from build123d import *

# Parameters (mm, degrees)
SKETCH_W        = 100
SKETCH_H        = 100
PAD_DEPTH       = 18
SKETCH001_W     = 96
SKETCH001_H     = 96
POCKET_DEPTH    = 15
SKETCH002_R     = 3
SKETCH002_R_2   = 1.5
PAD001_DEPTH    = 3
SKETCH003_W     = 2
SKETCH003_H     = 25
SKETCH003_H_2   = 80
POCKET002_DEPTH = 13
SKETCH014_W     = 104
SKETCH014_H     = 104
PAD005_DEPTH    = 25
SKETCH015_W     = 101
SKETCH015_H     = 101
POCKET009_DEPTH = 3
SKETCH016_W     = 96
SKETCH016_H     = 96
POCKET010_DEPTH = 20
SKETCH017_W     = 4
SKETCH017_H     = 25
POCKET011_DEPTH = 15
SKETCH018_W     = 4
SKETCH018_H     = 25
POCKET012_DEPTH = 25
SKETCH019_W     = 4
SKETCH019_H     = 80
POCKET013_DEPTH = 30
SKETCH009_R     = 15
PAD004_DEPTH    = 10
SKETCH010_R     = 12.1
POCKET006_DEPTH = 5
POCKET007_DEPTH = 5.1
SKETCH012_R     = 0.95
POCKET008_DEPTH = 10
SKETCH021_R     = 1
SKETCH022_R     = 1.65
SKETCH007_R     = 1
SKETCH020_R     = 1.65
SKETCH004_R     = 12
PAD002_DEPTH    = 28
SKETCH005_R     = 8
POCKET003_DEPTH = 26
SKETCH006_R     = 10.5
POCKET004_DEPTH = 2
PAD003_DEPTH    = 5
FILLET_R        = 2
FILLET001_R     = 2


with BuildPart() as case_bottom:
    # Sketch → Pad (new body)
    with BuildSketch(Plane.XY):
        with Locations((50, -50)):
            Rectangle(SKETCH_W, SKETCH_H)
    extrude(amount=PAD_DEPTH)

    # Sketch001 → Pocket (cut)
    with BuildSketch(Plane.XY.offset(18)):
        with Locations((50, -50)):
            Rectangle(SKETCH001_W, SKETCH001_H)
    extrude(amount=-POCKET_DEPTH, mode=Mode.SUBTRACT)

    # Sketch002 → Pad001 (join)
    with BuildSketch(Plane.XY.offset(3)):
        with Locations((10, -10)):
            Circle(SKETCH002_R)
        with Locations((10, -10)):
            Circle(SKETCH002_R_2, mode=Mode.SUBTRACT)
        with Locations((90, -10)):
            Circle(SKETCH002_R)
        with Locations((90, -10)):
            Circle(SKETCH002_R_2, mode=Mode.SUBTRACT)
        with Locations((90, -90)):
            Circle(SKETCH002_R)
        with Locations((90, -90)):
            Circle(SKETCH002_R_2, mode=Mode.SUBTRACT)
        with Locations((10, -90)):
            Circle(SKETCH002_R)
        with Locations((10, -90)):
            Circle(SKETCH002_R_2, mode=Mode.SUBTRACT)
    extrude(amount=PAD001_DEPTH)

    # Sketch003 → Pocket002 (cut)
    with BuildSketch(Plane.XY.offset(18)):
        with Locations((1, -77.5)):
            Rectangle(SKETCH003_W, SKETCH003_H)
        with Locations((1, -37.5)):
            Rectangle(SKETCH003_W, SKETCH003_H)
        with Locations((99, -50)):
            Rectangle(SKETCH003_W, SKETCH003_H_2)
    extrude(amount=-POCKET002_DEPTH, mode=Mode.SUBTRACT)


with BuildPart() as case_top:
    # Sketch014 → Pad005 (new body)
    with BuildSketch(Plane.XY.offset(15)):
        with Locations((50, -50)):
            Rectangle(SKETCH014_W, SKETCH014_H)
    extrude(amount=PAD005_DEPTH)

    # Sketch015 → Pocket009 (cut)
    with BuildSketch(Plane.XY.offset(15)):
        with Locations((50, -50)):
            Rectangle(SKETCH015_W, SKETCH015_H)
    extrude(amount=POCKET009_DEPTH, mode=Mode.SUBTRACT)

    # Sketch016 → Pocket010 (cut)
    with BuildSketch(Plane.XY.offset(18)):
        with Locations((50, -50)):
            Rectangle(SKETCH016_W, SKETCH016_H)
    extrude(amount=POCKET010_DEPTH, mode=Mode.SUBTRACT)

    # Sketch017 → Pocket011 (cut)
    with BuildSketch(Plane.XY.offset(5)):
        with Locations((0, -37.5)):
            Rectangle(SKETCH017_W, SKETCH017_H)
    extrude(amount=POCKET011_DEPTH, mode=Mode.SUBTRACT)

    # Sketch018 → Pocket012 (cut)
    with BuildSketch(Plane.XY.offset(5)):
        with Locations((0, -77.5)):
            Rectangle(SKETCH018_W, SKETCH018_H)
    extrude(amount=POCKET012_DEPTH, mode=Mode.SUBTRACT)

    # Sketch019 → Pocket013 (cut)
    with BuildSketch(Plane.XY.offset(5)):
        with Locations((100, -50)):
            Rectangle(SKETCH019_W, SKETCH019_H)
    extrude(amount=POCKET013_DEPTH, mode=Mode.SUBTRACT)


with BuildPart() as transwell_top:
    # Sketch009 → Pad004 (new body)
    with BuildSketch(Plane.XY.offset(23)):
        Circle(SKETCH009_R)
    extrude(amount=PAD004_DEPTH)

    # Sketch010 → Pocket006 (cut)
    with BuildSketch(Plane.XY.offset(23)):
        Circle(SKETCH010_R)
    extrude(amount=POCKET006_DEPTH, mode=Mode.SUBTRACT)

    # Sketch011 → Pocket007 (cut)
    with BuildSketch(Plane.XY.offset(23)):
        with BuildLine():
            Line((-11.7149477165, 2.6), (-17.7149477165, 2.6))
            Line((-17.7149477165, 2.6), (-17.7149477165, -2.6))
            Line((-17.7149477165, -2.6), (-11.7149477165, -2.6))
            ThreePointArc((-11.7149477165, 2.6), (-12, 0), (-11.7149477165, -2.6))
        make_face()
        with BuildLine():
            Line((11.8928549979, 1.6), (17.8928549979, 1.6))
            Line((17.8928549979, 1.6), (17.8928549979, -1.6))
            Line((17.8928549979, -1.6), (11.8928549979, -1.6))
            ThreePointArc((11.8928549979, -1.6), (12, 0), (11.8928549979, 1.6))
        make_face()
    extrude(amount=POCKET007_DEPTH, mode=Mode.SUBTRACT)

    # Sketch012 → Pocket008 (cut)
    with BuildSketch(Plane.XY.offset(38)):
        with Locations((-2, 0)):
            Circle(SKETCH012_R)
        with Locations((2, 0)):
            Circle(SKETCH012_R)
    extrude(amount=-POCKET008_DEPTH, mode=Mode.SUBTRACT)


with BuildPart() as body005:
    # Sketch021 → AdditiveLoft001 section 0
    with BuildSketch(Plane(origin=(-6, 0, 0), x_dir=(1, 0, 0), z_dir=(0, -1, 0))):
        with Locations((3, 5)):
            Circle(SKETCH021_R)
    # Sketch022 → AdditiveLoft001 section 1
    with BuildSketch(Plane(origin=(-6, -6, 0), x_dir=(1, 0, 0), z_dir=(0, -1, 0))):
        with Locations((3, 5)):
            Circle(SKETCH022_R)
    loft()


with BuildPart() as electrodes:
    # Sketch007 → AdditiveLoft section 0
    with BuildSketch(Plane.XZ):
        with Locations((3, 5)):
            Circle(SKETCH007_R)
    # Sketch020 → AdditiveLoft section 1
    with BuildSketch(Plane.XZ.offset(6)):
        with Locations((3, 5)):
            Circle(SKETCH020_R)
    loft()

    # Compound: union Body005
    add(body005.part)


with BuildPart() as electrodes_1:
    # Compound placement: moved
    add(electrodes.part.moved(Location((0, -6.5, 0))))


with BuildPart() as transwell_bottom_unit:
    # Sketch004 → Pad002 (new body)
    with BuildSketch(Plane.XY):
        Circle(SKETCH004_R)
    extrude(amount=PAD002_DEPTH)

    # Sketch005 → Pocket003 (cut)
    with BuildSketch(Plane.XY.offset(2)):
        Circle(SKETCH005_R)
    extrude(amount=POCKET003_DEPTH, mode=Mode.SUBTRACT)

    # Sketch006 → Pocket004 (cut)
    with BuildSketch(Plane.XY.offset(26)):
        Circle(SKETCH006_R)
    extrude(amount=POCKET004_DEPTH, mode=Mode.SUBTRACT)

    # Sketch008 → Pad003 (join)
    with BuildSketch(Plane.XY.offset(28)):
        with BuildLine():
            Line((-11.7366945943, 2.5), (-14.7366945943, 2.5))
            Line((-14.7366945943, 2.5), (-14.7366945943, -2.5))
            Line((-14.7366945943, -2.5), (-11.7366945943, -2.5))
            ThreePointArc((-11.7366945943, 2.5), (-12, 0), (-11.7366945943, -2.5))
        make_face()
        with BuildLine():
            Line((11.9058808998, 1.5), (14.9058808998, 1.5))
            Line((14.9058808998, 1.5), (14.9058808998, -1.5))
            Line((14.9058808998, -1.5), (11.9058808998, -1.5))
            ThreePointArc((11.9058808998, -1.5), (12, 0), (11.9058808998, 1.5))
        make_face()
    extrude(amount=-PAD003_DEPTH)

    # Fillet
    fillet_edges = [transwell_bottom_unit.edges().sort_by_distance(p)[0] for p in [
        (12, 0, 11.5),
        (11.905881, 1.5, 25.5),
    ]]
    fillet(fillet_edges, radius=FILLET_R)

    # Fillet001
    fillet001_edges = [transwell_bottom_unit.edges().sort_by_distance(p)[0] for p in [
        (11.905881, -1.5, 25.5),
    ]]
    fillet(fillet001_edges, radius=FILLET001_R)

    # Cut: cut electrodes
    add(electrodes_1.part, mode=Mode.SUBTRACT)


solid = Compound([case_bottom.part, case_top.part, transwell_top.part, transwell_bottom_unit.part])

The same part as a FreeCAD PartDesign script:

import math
import FreeCAD as App
import Part
import Sketcher


def edges_at(feature, points):
    """Names of the edges that pass closest to the given points."""
    edges = feature.Shape.Edges
    near = lambda p: min(range(len(edges)), key=lambda i: edges[i].distToShape(Part.Vertex(*p))[0])
    return sorted({f"Edge{near(p) + 1}" for p in points})


def add_polygon(sketch, points):
    """Adds a closed chain of lines whose ends are joined by coincident constraints."""
    first, n = sketch.GeometryCount, len(points)
    for a, b in zip(points, points[1:] + points[:1]):
        sketch.addGeometry(Part.LineSegment(App.Vector(*a, 0), App.Vector(*b, 0)), False)
    for i in range(n):
        sketch.addConstraint(Sketcher.Constraint("Coincident", first + i, 2, first + (i + 1) % n, 1))

doc = App.newDocument("Part")
body = doc.addObject("PartDesign::Body", "Body")

# Sketch on XY plane
sketch1 = body.newObject("Sketcher::SketchObject", "Sketch")
sketch1.AttachmentSupport = (doc.getObject("XY_Plane"), [""])
sketch1.MapMode = "FlatFace"
add_polygon(sketch1, [(0, 0), (0, -100), (100, -100), (100, 0)])  # lines 0-3
sketch1.addConstraint(Sketcher.Constraint("Vertical", 0))
sketch1.addConstraint(Sketcher.Constraint("Horizontal", 1))
sketch1.addConstraint(Sketcher.Constraint("Vertical", 2))
sketch1.addConstraint(Sketcher.Constraint("Horizontal", 3))
sketch1.addConstraint(Sketcher.Constraint("Coincident", 3, 2, -1, 1))
sketch1.addConstraint(Sketcher.Constraint("Equal", 3, 0))
sketch1.addConstraint(Sketcher.Constraint("DistanceX", 1, 1, 1, 2, 100.0))
pad1 = body.newObject("PartDesign::Pad", "Pad")
pad1.Profile = sketch1
pad1.Length = 18

# Sketch on XY plane
sketch2 = body.newObject("Sketcher::SketchObject", "Sketch001")
sketch2.AttachmentSupport = (doc.getObject("XY_Plane"), [""])
sketch2.MapMode = "FlatFace"
sketch2.AttachmentOffset = App.Placement(App.Vector(0, 0, 18), App.Rotation())
add_polygon(sketch2, [(2, -2), (2, -98), (98, -98), (98, -2)])  # lines 0-3
sketch2.addConstraint(Sketcher.Constraint("Vertical", 0))
sketch2.addConstraint(Sketcher.Constraint("Horizontal", 1))
sketch2.addConstraint(Sketcher.Constraint("Vertical", 2))
sketch2.addConstraint(Sketcher.Constraint("Horizontal", 3))
sketch2.addConstraint(Sketcher.Constraint("Equal", 3, 0))
sketch2.addConstraint(Sketcher.Constraint("DistanceX", 1, 1, 1, 2, 96.0))
sketch2.addConstraint(Sketcher.Constraint("DistanceX", -1, 1, 0, 2, 2.0))
sketch2.addConstraint(Sketcher.Constraint("DistanceY", 0, 2, -1, 1, 98.0))
pocket1 = body.newObject("PartDesign::Pocket", "Pocket")
pocket1.Profile = sketch2
pocket1.Length = 15

# Sketch on XY plane
sketch3 = body.newObject("Sketcher::SketchObject", "Sketch002")
sketch3.AttachmentSupport = (doc.getObject("XY_Plane"), [""])
sketch3.MapMode = "FlatFace"
sketch3.AttachmentOffset = App.Placement(App.Vector(0, 0, 3), App.Rotation())
sketch3.addGeometry(Part.Circle(App.Vector(10, -10, 0), App.Vector(0, 0, 1), 3), False)
sketch3.addGeometry(Part.Circle(App.Vector(10, -10, 0), App.Vector(0, 0, 1), 1.5), False)
sketch3.addGeometry(Part.Circle(App.Vector(90, -10, 0), App.Vector(0, 0, 1), 3), False)
sketch3.addGeometry(Part.Circle(App.Vector(90, -10, 0), App.Vector(0, 0, 1), 1.5), False)
sketch3.addGeometry(Part.Circle(App.Vector(90, -90, 0), App.Vector(0, 0, 1), 3), False)
sketch3.addGeometry(Part.Circle(App.Vector(90, -90, 0), App.Vector(0, 0, 1), 1.5), False)
sketch3.addGeometry(Part.Circle(App.Vector(10, -90, 0), App.Vector(0, 0, 1), 3), False)
sketch3.addGeometry(Part.Circle(App.Vector(10, -90, 0), App.Vector(0, 0, 1), 1.5), False)
sketch3.addConstraint(Sketcher.Constraint("Coincident", 1, 3, 0, 3))
sketch3.addConstraint(Sketcher.Constraint("Coincident", 3, 3, 2, 3))
sketch3.addConstraint(Sketcher.Constraint("Coincident", 5, 3, 4, 3))
sketch3.addConstraint(Sketcher.Constraint("Coincident", 7, 3, 6, 3))
sketch3.addConstraint(Sketcher.Constraint("Equal", 0, 2))
sketch3.addConstraint(Sketcher.Constraint("Equal", 1, 3))
sketch3.addConstraint(Sketcher.Constraint("Equal", 2, 4))
sketch3.addConstraint(Sketcher.Constraint("Equal", 3, 5))
sketch3.addConstraint(Sketcher.Constraint("Equal", 4, 6))
sketch3.addConstraint(Sketcher.Constraint("Equal", 5, 7))
sketch3.addConstraint(Sketcher.Constraint("Horizontal", 1, 3, 2, 3))
sketch3.addConstraint(Sketcher.Constraint("Horizontal", 5, 3, 6, 3))
sketch3.addConstraint(Sketcher.Constraint("Vertical", 3, 3, 4, 3))
sketch3.addConstraint(Sketcher.Constraint("Vertical", 1, 3, 6, 3))
sketch3.addConstraint(Sketcher.Constraint("Diameter", 0, 6.0))
sketch3.addConstraint(Sketcher.Constraint("Diameter", 1, 3.0))
sketch3.addConstraint(Sketcher.Constraint("DistanceX", -1, 1, 0, 3, 10.0))
sketch3.addConstraint(Sketcher.Constraint("DistanceY", 0, 3, -1, 1, 10.0))
sketch3.addConstraint(Sketcher.Constraint("DistanceX", -1, 1, 2, 3, 90.0))
sketch3.addConstraint(Sketcher.Constraint("DistanceY", 4, 3, -1, 1, 90.0))
pad2 = body.newObject("PartDesign::Pad", "Pad001")
pad2.Profile = sketch3
pad2.Length = 3

# Sketch on XY plane
sketch4 = body.newObject("Sketcher::SketchObject", "Sketch003")
sketch4.AttachmentSupport = (doc.getObject("XY_Plane"), [""])
sketch4.MapMode = "FlatFace"
sketch4.AttachmentOffset = App.Placement(App.Vector(0, 0, 18), App.Rotation())
add_polygon(sketch4, [(0, -65), (0, -90), (2, -90), (2, -65)])  # lines 0-3
add_polygon(sketch4, [(0, -25), (0, -50), (2, -50), (2, -25)])  # lines 4-7
add_polygon(sketch4, [(98, -10), (98, -90), (100, -90), (100, -10)])  # lines 8-11
sketch4.addConstraint(Sketcher.Constraint("Vertical", 0))
sketch4.addConstraint(Sketcher.Constraint("Horizontal", 1))
sketch4.addConstraint(Sketcher.Constraint("Vertical", 2))
sketch4.addConstraint(Sketcher.Constraint("Horizontal", 3))
sketch4.addConstraint(Sketcher.Constraint("Vertical", 4))
sketch4.addConstraint(Sketcher.Constraint("Horizontal", 5))
sketch4.addConstraint(Sketcher.Constraint("Vertical", 6))
sketch4.addConstraint(Sketcher.Constraint("Horizontal", 7))
sketch4.addConstraint(Sketcher.Constraint("Vertical", 8))
sketch4.addConstraint(Sketcher.Constraint("Horizontal", 9))
sketch4.addConstraint(Sketcher.Constraint("Vertical", 10))
sketch4.addConstraint(Sketcher.Constraint("Horizontal", 11))
sketch4.addConstraint(Sketcher.Constraint("PointOnObject", 0, 2, -2))
sketch4.addConstraint(Sketcher.Constraint("PointOnObject", 4, 2, -2))
sketch4.addConstraint(Sketcher.Constraint("Horizontal", 1, 2, 8, 2))
sketch4.addConstraint(Sketcher.Constraint("Vertical", 2, 2, 5, 2))
sketch4.addConstraint(Sketcher.Constraint("Equal", 7, 9))
sketch4.addConstraint(Sketcher.Constraint("Equal", 2, 4))
sketch4.addConstraint(Sketcher.Constraint("DistanceX", 1, 1, 1, 2, 2.0))
sketch4.addConstraint(Sketcher.Constraint("DistanceY", 0, 2, 0, 1, 25.0))
sketch4.addConstraint(Sketcher.Constraint("DistanceY", 8, 2, 8, 1, 80.0))
sketch4.addConstraint(Sketcher.Constraint("DistanceY", 0, 2, -1, 1, 90.0))
sketch4.addConstraint(Sketcher.Constraint("DistanceY", 4, 2, -1, 1, 50.0))
sketch4.addConstraint(Sketcher.Constraint("DistanceX", -1, 1, 8, 2, 98.0))
pocket2 = body.newObject("PartDesign::Pocket", "Pocket001")
pocket2.Profile = sketch4
pocket2.Length = 13
body2 = doc.addObject("PartDesign::Body", "Body001")

# Sketch on XY plane
sketch5 = body2.newObject("Sketcher::SketchObject", "Sketch004")
sketch5.AttachmentSupport = (doc.getObject("XY_Plane001"), [""])
sketch5.MapMode = "FlatFace"
sketch5.AttachmentOffset = App.Placement(App.Vector(0, 0, 15), App.Rotation())
add_polygon(sketch5, [(-2, 2), (-2, -102), (102, -102), (102, 2)])  # lines 0-3
sketch5.addConstraint(Sketcher.Constraint("Vertical", 0))
sketch5.addConstraint(Sketcher.Constraint("Horizontal", 1))
sketch5.addConstraint(Sketcher.Constraint("Vertical", 2))
sketch5.addConstraint(Sketcher.Constraint("Horizontal", 3))
sketch5.addConstraint(Sketcher.Constraint("Equal", 3, 0))
sketch5.addConstraint(Sketcher.Constraint("DistanceX", 1, 1, 1, 2, 104.0))
sketch5.addConstraint(Sketcher.Constraint("DistanceX", 0, 2, -1, 1, 2.0))
sketch5.addConstraint(Sketcher.Constraint("DistanceY", 0, 2, -1, 1, 102.0))
pad3 = body2.newObject("PartDesign::Pad", "Pad002")
pad3.Profile = sketch5
pad3.Length = 25

# Sketch on XY plane
sketch6 = body2.newObject("Sketcher::SketchObject", "Sketch005")
sketch6.AttachmentSupport = (doc.getObject("XY_Plane001"), [""])
sketch6.MapMode = "FlatFace"
sketch6.AttachmentOffset = App.Placement(App.Vector(0, 0, 15), App.Rotation())
add_polygon(sketch6, [(0, 0), (0, -100), (100, -100), (100, 0)])  # lines 0-3
sketch6.addConstraint(Sketcher.Constraint("Vertical", 0))
sketch6.addConstraint(Sketcher.Constraint("Horizontal", 1))
sketch6.addConstraint(Sketcher.Constraint("Vertical", 2))
sketch6.addConstraint(Sketcher.Constraint("Horizontal", 3))
sketch6.addConstraint(Sketcher.Constraint("Equal", 3, 0))
sketch6.addConstraint(Sketcher.Constraint("DistanceX", 1, 1, 1, 2, 101.0))
sketch6.addConstraint(Sketcher.Constraint("DistanceX", 0, 2, -1, 1, 0.5))
sketch6.addConstraint(Sketcher.Constraint("DistanceY", 0, 2, -1, 1, 100.5))
pocket3 = body2.newObject("PartDesign::Pocket", "Pocket002")
pocket3.Profile = sketch6
pocket3.Length = 3
pocket3.Reversed = True

# Sketch on XY plane
sketch7 = body2.newObject("Sketcher::SketchObject", "Sketch006")
sketch7.AttachmentSupport = (doc.getObject("XY_Plane001"), [""])
sketch7.MapMode = "FlatFace"
sketch7.AttachmentOffset = App.Placement(App.Vector(0, 0, 18), App.Rotation())
add_polygon(sketch7, [(2, -2), (2, -98), (98, -98), (98, -2)])  # lines 0-3
sketch7.addConstraint(Sketcher.Constraint("Vertical", 0))
sketch7.addConstraint(Sketcher.Constraint("Horizontal", 1))
sketch7.addConstraint(Sketcher.Constraint("Vertical", 2))
sketch7.addConstraint(Sketcher.Constraint("Horizontal", 3))
sketch7.addConstraint(Sketcher.Constraint("Equal", 3, 0))
sketch7.addConstraint(Sketcher.Constraint("DistanceX", 1, 1, 1, 2, 96.0))
sketch7.addConstraint(Sketcher.Constraint("DistanceX", -1, 1, 0, 2, 2.0))
sketch7.addConstraint(Sketcher.Constraint("DistanceY", 0, 2, -1, 1, 98.0))
pocket4 = body2.newObject("PartDesign::Pocket", "Pocket003")
pocket4.Profile = sketch7
pocket4.Length = 20
pocket4.Reversed = True

# Sketch on XY plane
sketch8 = body2.newObject("Sketcher::SketchObject", "Sketch007")
sketch8.AttachmentSupport = (doc.getObject("XY_Plane001"), [""])
sketch8.MapMode = "FlatFace"
sketch8.AttachmentOffset = App.Placement(App.Vector(0, 0, 5), App.Rotation())
add_polygon(sketch8, [(-2, -25), (-2, -50), (2, -50), (2, -25)])  # lines 0-3
sketch8.addConstraint(Sketcher.Constraint("Vertical", 0))
sketch8.addConstraint(Sketcher.Constraint("Horizontal", 1))
sketch8.addConstraint(Sketcher.Constraint("Vertical", 2))
sketch8.addConstraint(Sketcher.Constraint("Horizontal", 3))
sketch8.addConstraint(Sketcher.Constraint("DistanceX", 1, 1, 1, 2, 4.0))
sketch8.addConstraint(Sketcher.Constraint("DistanceY", 0, 2, 0, 1, 25.0))
sketch8.addConstraint(Sketcher.Constraint("DistanceX", 0, 2, -1, 1, 2.0))
sketch8.addConstraint(Sketcher.Constraint("DistanceY", 0, 2, -1, 1, 50.0))
pocket5 = body2.newObject("PartDesign::Pocket", "Pocket004")
pocket5.Profile = sketch8
pocket5.Length = 15
pocket5.Reversed = True

# Sketch on XY plane
sketch9 = body2.newObject("Sketcher::SketchObject", "Sketch008")
sketch9.AttachmentSupport = (doc.getObject("XY_Plane001"), [""])
sketch9.MapMode = "FlatFace"
sketch9.AttachmentOffset = App.Placement(App.Vector(0, 0, 5), App.Rotation())
add_polygon(sketch9, [(-2, -65), (-2, -90), (2, -90), (2, -65)])  # lines 0-3
sketch9.addConstraint(Sketcher.Constraint("Vertical", 0))
sketch9.addConstraint(Sketcher.Constraint("Horizontal", 1))
sketch9.addConstraint(Sketcher.Constraint("Vertical", 2))
sketch9.addConstraint(Sketcher.Constraint("Horizontal", 3))
sketch9.addConstraint(Sketcher.Constraint("DistanceX", 1, 1, 1, 2, 4.0))
sketch9.addConstraint(Sketcher.Constraint("DistanceY", 0, 2, 0, 1, 25.0))
sketch9.addConstraint(Sketcher.Constraint("DistanceX", 0, 2, -1, 1, 2.0))
sketch9.addConstraint(Sketcher.Constraint("DistanceY", 0, 2, -1, 1, 90.0))
pocket6 = body2.newObject("PartDesign::Pocket", "Pocket005")
pocket6.Profile = sketch9
pocket6.Length = 25
pocket6.Reversed = True

# Sketch on XY plane
sketch10 = body2.newObject("Sketcher::SketchObject", "Sketch009")
sketch10.AttachmentSupport = (doc.getObject("XY_Plane001"), [""])
sketch10.MapMode = "FlatFace"
sketch10.AttachmentOffset = App.Placement(App.Vector(0, 0, 5), App.Rotation())
add_polygon(sketch10, [(98, -10), (98, -90), (102, -90), (102, -10)])  # lines 0-3
sketch10.addConstraint(Sketcher.Constraint("Vertical", 0))
sketch10.addConstraint(Sketcher.Constraint("Horizontal", 1))
sketch10.addConstraint(Sketcher.Constraint("Vertical", 2))
sketch10.addConstraint(Sketcher.Constraint("Horizontal", 3))
sketch10.addConstraint(Sketcher.Constraint("DistanceX", 1, 1, 1, 2, 4.0))
sketch10.addConstraint(Sketcher.Constraint("DistanceY", 0, 2, 0, 1, 80.0))
sketch10.addConstraint(Sketcher.Constraint("DistanceX", -1, 1, 0, 2, 98.0))
sketch10.addConstraint(Sketcher.Constraint("DistanceY", 0, 2, -1, 1, 90.0))
pocket7 = body2.newObject("PartDesign::Pocket", "Pocket006")
pocket7.Profile = sketch10
pocket7.Length = 30
pocket7.Reversed = True
body3 = doc.addObject("PartDesign::Body", "Body002")

# Sketch on XY plane
sketch11 = body3.newObject("Sketcher::SketchObject", "Sketch010")
sketch11.AttachmentSupport = (doc.getObject("XY_Plane002"), [""])
sketch11.MapMode = "FlatFace"
sketch11.AttachmentOffset = App.Placement(App.Vector(0, 0, 23), App.Rotation())
sketch11.addGeometry(Part.Circle(App.Vector(0, 0, 0), App.Vector(0, 0, 1), 15), False)
sketch11.addConstraint(Sketcher.Constraint("Coincident", 0, 3, -1, 1))
sketch11.addConstraint(Sketcher.Constraint("Diameter", 0, 30.0))
pad4 = body3.newObject("PartDesign::Pad", "Pad003")
pad4.Profile = sketch11
pad4.Length = 10

# Sketch on XY plane
sketch12 = body3.newObject("Sketcher::SketchObject", "Sketch011")
sketch12.AttachmentSupport = (doc.getObject("XY_Plane002"), [""])
sketch12.MapMode = "FlatFace"
sketch12.AttachmentOffset = App.Placement(App.Vector(0, 0, 23), App.Rotation())
sketch12.addGeometry(Part.Circle(App.Vector(0, 0, 0), App.Vector(0, 0, 1), 12), False)
sketch12.addConstraint(Sketcher.Constraint("Coincident", 0, 3, -1, 1))
sketch12.addConstraint(Sketcher.Constraint("Diameter", 0, 24.2))
pocket8 = body3.newObject("PartDesign::Pocket", "Pocket007")
pocket8.Profile = sketch12
pocket8.Length = 5
pocket8.Reversed = True

# Sketch on XY plane
sketch13 = body3.newObject("Sketcher::SketchObject", "Sketch012")
sketch13.AttachmentSupport = (doc.getObject("XY_Plane002"), [""])
sketch13.MapMode = "FlatFace"
sketch13.AttachmentOffset = App.Placement(App.Vector(0, 0, 23), App.Rotation())
sketch13.addGeometry(Part.LineSegment(App.Vector(-11.7, 2.6, 0), App.Vector(-17.7, 2.6, 0)), False)
sketch13.addGeometry(Part.LineSegment(App.Vector(-17.7, 2.6, 0), App.Vector(-17.7, -2.6, 0)), False)
sketch13.addGeometry(Part.LineSegment(App.Vector(-17.7, -2.6, 0), App.Vector(-11.7, -2.6, 0)), False)
sketch13.addGeometry(Part.ArcOfCircle(Part.Circle(App.Vector(0, 0, 0), App.Vector(0, 0, 1), 12), math.radians(167), math.radians(193)), False)
sketch13.addGeometry(Part.LineSegment(App.Vector(17.9, 1.6, 0), App.Vector(11.9, 1.6, 0)), False)
sketch13.addGeometry(Part.ArcOfCircle(Part.Circle(App.Vector(0, 0, 0), App.Vector(0, 0, 1), 12), math.radians(-7.66), math.radians(7.66)), False)
sketch13.addGeometry(Part.LineSegment(App.Vector(11.9, -1.6, 0), App.Vector(17.9, -1.6, 0)), False)
sketch13.addGeometry(Part.LineSegment(App.Vector(17.9, -1.6, 0), App.Vector(17.9, 1.6, 0)), False)
sketch13.addConstraint(Sketcher.Constraint("Coincident", 0, 2, 1, 1))
sketch13.addConstraint(Sketcher.Constraint("Coincident", 1, 2, 2, 1))
sketch13.addConstraint(Sketcher.Constraint("Coincident", 2, 2, 3, 2))
sketch13.addConstraint(Sketcher.Constraint("Coincident", 3, 1, 0, 1))
sketch13.addConstraint(Sketcher.Constraint("Coincident", 4, 2, 5, 2))
sketch13.addConstraint(Sketcher.Constraint("Coincident", 5, 1, 6, 1))
sketch13.addConstraint(Sketcher.Constraint("Coincident", 6, 2, 7, 1))
sketch13.addConstraint(Sketcher.Constraint("Coincident", 7, 2, 4, 1))
sketch13.addConstraint(Sketcher.Constraint("Horizontal", 0))
sketch13.addConstraint(Sketcher.Constraint("Vertical", 1))
sketch13.addConstraint(Sketcher.Constraint("Horizontal", 2))
sketch13.addConstraint(Sketcher.Constraint("Horizontal", 4))
sketch13.addConstraint(Sketcher.Constraint("Horizontal", 6))
sketch13.addConstraint(Sketcher.Constraint("Vertical", 7))
sketch13.addConstraint(Sketcher.Constraint("Coincident", 3, 3, -1, 1))
sketch13.addConstraint(Sketcher.Constraint("Coincident", 5, 3, -1, 1))
sketch13.addConstraint(Sketcher.Constraint("Equal", 3, 5))
sketch13.addConstraint(Sketcher.Constraint("Vertical", 2, 2, 3, 1))
sketch13.addConstraint(Sketcher.Constraint("Vertical", 4, 2, 5, 1))
sketch13.addConstraint(Sketcher.Constraint("Equal", 2, 4))
sketch13.addConstraint(Sketcher.Constraint("Radius", 3, 12.0))
sketch13.addConstraint(Sketcher.Constraint("DistanceX", 0, 2, 0, 1, 6.0))
sketch13.addConstraint(Sketcher.Constraint("DistanceY", 1, 2, 1, 1, 5.2))
sketch13.addConstraint(Sketcher.Constraint("DistanceY", 7, 1, 7, 2, 3.2))
pocket9 = body3.newObject("PartDesign::Pocket", "Pocket008")
pocket9.Profile = sketch13
pocket9.Length = 5.1
pocket9.Reversed = True

# Sketch on XY plane
sketch14 = body3.newObject("Sketcher::SketchObject", "Sketch013")
sketch14.AttachmentSupport = (doc.getObject("XY_Plane002"), [""])
sketch14.MapMode = "FlatFace"
sketch14.AttachmentOffset = App.Placement(App.Vector(0, 0, 38), App.Rotation())
sketch14.addGeometry(Part.Circle(App.Vector(-2, 0, 0), App.Vector(0, 0, 1), 0.9), False)
sketch14.addGeometry(Part.Circle(App.Vector(2, 0, 0), App.Vector(0, 0, 1), 0.9), False)
sketch14.addConstraint(Sketcher.Constraint("Equal", 0, 1))
sketch14.addConstraint(Sketcher.Constraint("Symmetric", 0, 3, 1, 3, -1, 1))
sketch14.addConstraint(Sketcher.Constraint("PointOnObject", 0, 3, -1))
sketch14.addConstraint(Sketcher.Constraint("Diameter", 0, 1.9))
sketch14.addConstraint(Sketcher.Constraint("DistanceX", 0, 3, -1, 1, 2.0))
pocket10 = body3.newObject("PartDesign::Pocket", "Pocket009")
pocket10.Profile = sketch14
pocket10.Length = 10
body4 = doc.addObject("PartDesign::Body", "Body003")

# Sketch on XZ plane
sketch15 = body4.newObject("Sketcher::SketchObject", "Sketch014")
sketch15.AttachmentSupport = (doc.getObject("XZ_Plane003"), [""])
sketch15.MapMode = "FlatFace"
sketch15.addGeometry(Part.Circle(App.Vector(-3, 5, 0), App.Vector(0, 0, 1), 1), False)
sketch15.addConstraint(Sketcher.Constraint("Diameter", 0, 2.0))
sketch15.addConstraint(Sketcher.Constraint("DistanceX", 0, 3, -1, 1, 3.0))
sketch15.addConstraint(Sketcher.Constraint("DistanceY", -1, 1, 0, 3, 5.0))

# Sketch on XZ plane
sketch16 = body4.newObject("Sketcher::SketchObject", "Sketch015")
sketch16.AttachmentSupport = (doc.getObject("XZ_Plane003"), [""])
sketch16.MapMode = "FlatFace"
sketch16.AttachmentOffset = App.Placement(App.Vector(0, 0, 6), App.Rotation())
sketch16.addGeometry(Part.Circle(App.Vector(-3, 5, 0), App.Vector(0, 0, 1), 1.6), False)
sketch16.addConstraint(Sketcher.Constraint("Diameter", 0, 3.3))
sketch16.addConstraint(Sketcher.Constraint("DistanceX", 0, 3, -1, 1, 3.0))
sketch16.addConstraint(Sketcher.Constraint("DistanceY", -1, 1, 0, 3, 5.0))

additiveloft = body4.newObject("PartDesign::AdditiveLoft", "AdditiveLoft")
additiveloft.Profile = sketch15
additiveloft.Sections = [sketch16]
body5 = doc.addObject("PartDesign::Body", "Body004")
body5.AllowCompound = True

# Sketch on XZ plane
sketch17 = body5.newObject("Sketcher::SketchObject", "Sketch016")
sketch17.AttachmentSupport = (doc.getObject("XZ_Plane004"), [""])
sketch17.MapMode = "FlatFace"
sketch17.addGeometry(Part.Circle(App.Vector(3, 5, 0), App.Vector(0, 0, 1), 1), False)
sketch17.addConstraint(Sketcher.Constraint("Diameter", 0, 2.0))
sketch17.addConstraint(Sketcher.Constraint("DistanceX", -1, 1, 0, 3, 3.0))
sketch17.addConstraint(Sketcher.Constraint("DistanceY", -1, 1, 0, 3, 5.0))

# Sketch on XZ plane
sketch18 = body5.newObject("Sketcher::SketchObject", "Sketch017")
sketch18.AttachmentSupport = (doc.getObject("XZ_Plane004"), [""])
sketch18.MapMode = "FlatFace"
sketch18.AttachmentOffset = App.Placement(App.Vector(0, 0, 6), App.Rotation())
sketch18.addGeometry(Part.Circle(App.Vector(3, 5, 0), App.Vector(0, 0, 1), 1.6), False)
sketch18.addConstraint(Sketcher.Constraint("Diameter", 0, 3.3))
sketch18.addConstraint(Sketcher.Constraint("DistanceX", -1, 1, 0, 3, 3.0))
sketch18.addConstraint(Sketcher.Constraint("DistanceY", -1, 1, 0, 3, 5.0))

additiveloft2 = body5.newObject("PartDesign::AdditiveLoft", "AdditiveLoft001")
additiveloft2.Profile = sketch17
additiveloft2.Sections = [sketch18]
doc.recompute()

boolean = body5.newObject("PartDesign::Boolean", "Boolean")
boolean.Type = "Fuse"
boolean.addObjects([body4])
body6 = doc.addObject("PartDesign::Body", "Body005")
body6.AllowCompound = True
doc.recompute()

body5.Placement = App.Placement(App.Vector(0, -6.5, 0), App.Rotation(App.Vector(0, 0, 1), 0))
boolean2 = body6.newObject("PartDesign::Boolean", "Boolean001")
boolean2.Type = "Fuse"
boolean2.addObjects([body5])
body7 = doc.addObject("PartDesign::Body", "Body006")

# Sketch on XY plane
sketch19 = body7.newObject("Sketcher::SketchObject", "Sketch018")
sketch19.AttachmentSupport = (doc.getObject("XY_Plane006"), [""])
sketch19.MapMode = "FlatFace"
sketch19.addGeometry(Part.Circle(App.Vector(0, 0, 0), App.Vector(0, 0, 1), 12), False)
sketch19.addConstraint(Sketcher.Constraint("Coincident", 0, 3, -1, 1))
sketch19.addConstraint(Sketcher.Constraint("Diameter", 0, 24.0))
pad5 = body7.newObject("PartDesign::Pad", "Pad004")
pad5.Profile = sketch19
pad5.Length = 28

# Sketch on XY plane
sketch20 = body7.newObject("Sketcher::SketchObject", "Sketch019")
sketch20.AttachmentSupport = (doc.getObject("XY_Plane006"), [""])
sketch20.MapMode = "FlatFace"
sketch20.AttachmentOffset = App.Placement(App.Vector(0, 0, 2), App.Rotation())
sketch20.addGeometry(Part.Circle(App.Vector(0, 0, 0), App.Vector(0, 0, 1), 8), False)
sketch20.addConstraint(Sketcher.Constraint("Coincident", 0, 3, -1, 1))
sketch20.addConstraint(Sketcher.Constraint("Diameter", 0, 16.0))
pocket11 = body7.newObject("PartDesign::Pocket", "Pocket010")
pocket11.Profile = sketch20
pocket11.Length = 26
pocket11.Reversed = True

# Sketch on XY plane
sketch21 = body7.newObject("Sketcher::SketchObject", "Sketch020")
sketch21.AttachmentSupport = (doc.getObject("XY_Plane006"), [""])
sketch21.MapMode = "FlatFace"
sketch21.AttachmentOffset = App.Placement(App.Vector(0, 0, 26), App.Rotation())
sketch21.addGeometry(Part.Circle(App.Vector(0, 0, 0), App.Vector(0, 0, 1), 10), False)
sketch21.addConstraint(Sketcher.Constraint("Coincident", 0, 3, -1, 1))
sketch21.addConstraint(Sketcher.Constraint("Diameter", 0, 21.0))
pocket12 = body7.newObject("PartDesign::Pocket", "Pocket011")
pocket12.Profile = sketch21
pocket12.Length = 2
pocket12.Reversed = True

# Sketch on XY plane
sketch22 = body7.newObject("Sketcher::SketchObject", "Sketch021")
sketch22.AttachmentSupport = (doc.getObject("XY_Plane006"), [""])
sketch22.MapMode = "FlatFace"
sketch22.AttachmentOffset = App.Placement(App.Vector(0, 0, 28), App.Rotation())
sketch22.addGeometry(Part.LineSegment(App.Vector(-11.7, 2.5, 0), App.Vector(-14.7, 2.5, 0)), False)
sketch22.addGeometry(Part.LineSegment(App.Vector(-14.7, 2.5, 0), App.Vector(-14.7, -2.5, 0)), False)
sketch22.addGeometry(Part.LineSegment(App.Vector(-14.7, -2.5, 0), App.Vector(-11.7, -2.5, 0)), False)
sketch22.addGeometry(Part.ArcOfCircle(Part.Circle(App.Vector(0, 0, 0), App.Vector(0, 0, 1), 12), math.radians(168), math.radians(192)), False)
sketch22.addGeometry(Part.LineSegment(App.Vector(14.9, 1.5, 0), App.Vector(11.9, 1.5, 0)), False)
sketch22.addGeometry(Part.ArcOfCircle(Part.Circle(App.Vector(0, 0, 0), App.Vector(0, 0, 1), 12), math.radians(-7.18), math.radians(7.18)), False)
sketch22.addGeometry(Part.LineSegment(App.Vector(11.9, -1.5, 0), App.Vector(14.9, -1.5, 0)), False)
sketch22.addGeometry(Part.LineSegment(App.Vector(14.9, -1.5, 0), App.Vector(14.9, 1.5, 0)), False)
sketch22.addConstraint(Sketcher.Constraint("Coincident", 0, 2, 1, 1))
sketch22.addConstraint(Sketcher.Constraint("Coincident", 1, 2, 2, 1))
sketch22.addConstraint(Sketcher.Constraint("Coincident", 2, 2, 3, 2))
sketch22.addConstraint(Sketcher.Constraint("Coincident", 3, 1, 0, 1))
sketch22.addConstraint(Sketcher.Constraint("Coincident", 4, 2, 5, 2))
sketch22.addConstraint(Sketcher.Constraint("Coincident", 5, 1, 6, 1))
sketch22.addConstraint(Sketcher.Constraint("Coincident", 6, 2, 7, 1))
sketch22.addConstraint(Sketcher.Constraint("Coincident", 7, 2, 4, 1))
sketch22.addConstraint(Sketcher.Constraint("Horizontal", 0))
sketch22.addConstraint(Sketcher.Constraint("Vertical", 1))
sketch22.addConstraint(Sketcher.Constraint("Horizontal", 2))
sketch22.addConstraint(Sketcher.Constraint("Horizontal", 4))
sketch22.addConstraint(Sketcher.Constraint("Horizontal", 6))
sketch22.addConstraint(Sketcher.Constraint("Vertical", 7))
sketch22.addConstraint(Sketcher.Constraint("Coincident", 3, 3, -1, 1))
sketch22.addConstraint(Sketcher.Constraint("Coincident", 5, 3, -1, 1))
sketch22.addConstraint(Sketcher.Constraint("Equal", 3, 5))
sketch22.addConstraint(Sketcher.Constraint("Vertical", 2, 2, 3, 1))
sketch22.addConstraint(Sketcher.Constraint("Vertical", 4, 2, 5, 1))
sketch22.addConstraint(Sketcher.Constraint("Equal", 2, 4))
sketch22.addConstraint(Sketcher.Constraint("Equal", 6, 7))
sketch22.addConstraint(Sketcher.Constraint("Radius", 3, 12.0))
sketch22.addConstraint(Sketcher.Constraint("DistanceX", 0, 2, 0, 1, 3.0))
sketch22.addConstraint(Sketcher.Constraint("DistanceY", 1, 2, 1, 1, 5.0))
pad6 = body7.newObject("PartDesign::Pad", "Pad005")
pad6.Profile = sketch22
pad6.Length = 5
pad6.Reversed = True
doc.recompute()

fillet = body7.newObject("PartDesign::Fillet", "Fillet")
fillet.Base = (pad6, edges_at(pad6, [(12, 0, 11.5), (11.906, 1.5, 25.5)]))
fillet.Radius = 2
doc.recompute()

fillet2 = body7.newObject("PartDesign::Fillet", "Fillet001")
fillet2.Base = (fillet, edges_at(fillet, [(11.906, -1.5, 25.5)]))
fillet2.Radius = 2
doc.recompute()

boolean3 = body7.newObject("PartDesign::Boolean", "Boolean002")
boolean3.Type = "Cut"
boolean3.addObjects([body6])

doc.recompute()
